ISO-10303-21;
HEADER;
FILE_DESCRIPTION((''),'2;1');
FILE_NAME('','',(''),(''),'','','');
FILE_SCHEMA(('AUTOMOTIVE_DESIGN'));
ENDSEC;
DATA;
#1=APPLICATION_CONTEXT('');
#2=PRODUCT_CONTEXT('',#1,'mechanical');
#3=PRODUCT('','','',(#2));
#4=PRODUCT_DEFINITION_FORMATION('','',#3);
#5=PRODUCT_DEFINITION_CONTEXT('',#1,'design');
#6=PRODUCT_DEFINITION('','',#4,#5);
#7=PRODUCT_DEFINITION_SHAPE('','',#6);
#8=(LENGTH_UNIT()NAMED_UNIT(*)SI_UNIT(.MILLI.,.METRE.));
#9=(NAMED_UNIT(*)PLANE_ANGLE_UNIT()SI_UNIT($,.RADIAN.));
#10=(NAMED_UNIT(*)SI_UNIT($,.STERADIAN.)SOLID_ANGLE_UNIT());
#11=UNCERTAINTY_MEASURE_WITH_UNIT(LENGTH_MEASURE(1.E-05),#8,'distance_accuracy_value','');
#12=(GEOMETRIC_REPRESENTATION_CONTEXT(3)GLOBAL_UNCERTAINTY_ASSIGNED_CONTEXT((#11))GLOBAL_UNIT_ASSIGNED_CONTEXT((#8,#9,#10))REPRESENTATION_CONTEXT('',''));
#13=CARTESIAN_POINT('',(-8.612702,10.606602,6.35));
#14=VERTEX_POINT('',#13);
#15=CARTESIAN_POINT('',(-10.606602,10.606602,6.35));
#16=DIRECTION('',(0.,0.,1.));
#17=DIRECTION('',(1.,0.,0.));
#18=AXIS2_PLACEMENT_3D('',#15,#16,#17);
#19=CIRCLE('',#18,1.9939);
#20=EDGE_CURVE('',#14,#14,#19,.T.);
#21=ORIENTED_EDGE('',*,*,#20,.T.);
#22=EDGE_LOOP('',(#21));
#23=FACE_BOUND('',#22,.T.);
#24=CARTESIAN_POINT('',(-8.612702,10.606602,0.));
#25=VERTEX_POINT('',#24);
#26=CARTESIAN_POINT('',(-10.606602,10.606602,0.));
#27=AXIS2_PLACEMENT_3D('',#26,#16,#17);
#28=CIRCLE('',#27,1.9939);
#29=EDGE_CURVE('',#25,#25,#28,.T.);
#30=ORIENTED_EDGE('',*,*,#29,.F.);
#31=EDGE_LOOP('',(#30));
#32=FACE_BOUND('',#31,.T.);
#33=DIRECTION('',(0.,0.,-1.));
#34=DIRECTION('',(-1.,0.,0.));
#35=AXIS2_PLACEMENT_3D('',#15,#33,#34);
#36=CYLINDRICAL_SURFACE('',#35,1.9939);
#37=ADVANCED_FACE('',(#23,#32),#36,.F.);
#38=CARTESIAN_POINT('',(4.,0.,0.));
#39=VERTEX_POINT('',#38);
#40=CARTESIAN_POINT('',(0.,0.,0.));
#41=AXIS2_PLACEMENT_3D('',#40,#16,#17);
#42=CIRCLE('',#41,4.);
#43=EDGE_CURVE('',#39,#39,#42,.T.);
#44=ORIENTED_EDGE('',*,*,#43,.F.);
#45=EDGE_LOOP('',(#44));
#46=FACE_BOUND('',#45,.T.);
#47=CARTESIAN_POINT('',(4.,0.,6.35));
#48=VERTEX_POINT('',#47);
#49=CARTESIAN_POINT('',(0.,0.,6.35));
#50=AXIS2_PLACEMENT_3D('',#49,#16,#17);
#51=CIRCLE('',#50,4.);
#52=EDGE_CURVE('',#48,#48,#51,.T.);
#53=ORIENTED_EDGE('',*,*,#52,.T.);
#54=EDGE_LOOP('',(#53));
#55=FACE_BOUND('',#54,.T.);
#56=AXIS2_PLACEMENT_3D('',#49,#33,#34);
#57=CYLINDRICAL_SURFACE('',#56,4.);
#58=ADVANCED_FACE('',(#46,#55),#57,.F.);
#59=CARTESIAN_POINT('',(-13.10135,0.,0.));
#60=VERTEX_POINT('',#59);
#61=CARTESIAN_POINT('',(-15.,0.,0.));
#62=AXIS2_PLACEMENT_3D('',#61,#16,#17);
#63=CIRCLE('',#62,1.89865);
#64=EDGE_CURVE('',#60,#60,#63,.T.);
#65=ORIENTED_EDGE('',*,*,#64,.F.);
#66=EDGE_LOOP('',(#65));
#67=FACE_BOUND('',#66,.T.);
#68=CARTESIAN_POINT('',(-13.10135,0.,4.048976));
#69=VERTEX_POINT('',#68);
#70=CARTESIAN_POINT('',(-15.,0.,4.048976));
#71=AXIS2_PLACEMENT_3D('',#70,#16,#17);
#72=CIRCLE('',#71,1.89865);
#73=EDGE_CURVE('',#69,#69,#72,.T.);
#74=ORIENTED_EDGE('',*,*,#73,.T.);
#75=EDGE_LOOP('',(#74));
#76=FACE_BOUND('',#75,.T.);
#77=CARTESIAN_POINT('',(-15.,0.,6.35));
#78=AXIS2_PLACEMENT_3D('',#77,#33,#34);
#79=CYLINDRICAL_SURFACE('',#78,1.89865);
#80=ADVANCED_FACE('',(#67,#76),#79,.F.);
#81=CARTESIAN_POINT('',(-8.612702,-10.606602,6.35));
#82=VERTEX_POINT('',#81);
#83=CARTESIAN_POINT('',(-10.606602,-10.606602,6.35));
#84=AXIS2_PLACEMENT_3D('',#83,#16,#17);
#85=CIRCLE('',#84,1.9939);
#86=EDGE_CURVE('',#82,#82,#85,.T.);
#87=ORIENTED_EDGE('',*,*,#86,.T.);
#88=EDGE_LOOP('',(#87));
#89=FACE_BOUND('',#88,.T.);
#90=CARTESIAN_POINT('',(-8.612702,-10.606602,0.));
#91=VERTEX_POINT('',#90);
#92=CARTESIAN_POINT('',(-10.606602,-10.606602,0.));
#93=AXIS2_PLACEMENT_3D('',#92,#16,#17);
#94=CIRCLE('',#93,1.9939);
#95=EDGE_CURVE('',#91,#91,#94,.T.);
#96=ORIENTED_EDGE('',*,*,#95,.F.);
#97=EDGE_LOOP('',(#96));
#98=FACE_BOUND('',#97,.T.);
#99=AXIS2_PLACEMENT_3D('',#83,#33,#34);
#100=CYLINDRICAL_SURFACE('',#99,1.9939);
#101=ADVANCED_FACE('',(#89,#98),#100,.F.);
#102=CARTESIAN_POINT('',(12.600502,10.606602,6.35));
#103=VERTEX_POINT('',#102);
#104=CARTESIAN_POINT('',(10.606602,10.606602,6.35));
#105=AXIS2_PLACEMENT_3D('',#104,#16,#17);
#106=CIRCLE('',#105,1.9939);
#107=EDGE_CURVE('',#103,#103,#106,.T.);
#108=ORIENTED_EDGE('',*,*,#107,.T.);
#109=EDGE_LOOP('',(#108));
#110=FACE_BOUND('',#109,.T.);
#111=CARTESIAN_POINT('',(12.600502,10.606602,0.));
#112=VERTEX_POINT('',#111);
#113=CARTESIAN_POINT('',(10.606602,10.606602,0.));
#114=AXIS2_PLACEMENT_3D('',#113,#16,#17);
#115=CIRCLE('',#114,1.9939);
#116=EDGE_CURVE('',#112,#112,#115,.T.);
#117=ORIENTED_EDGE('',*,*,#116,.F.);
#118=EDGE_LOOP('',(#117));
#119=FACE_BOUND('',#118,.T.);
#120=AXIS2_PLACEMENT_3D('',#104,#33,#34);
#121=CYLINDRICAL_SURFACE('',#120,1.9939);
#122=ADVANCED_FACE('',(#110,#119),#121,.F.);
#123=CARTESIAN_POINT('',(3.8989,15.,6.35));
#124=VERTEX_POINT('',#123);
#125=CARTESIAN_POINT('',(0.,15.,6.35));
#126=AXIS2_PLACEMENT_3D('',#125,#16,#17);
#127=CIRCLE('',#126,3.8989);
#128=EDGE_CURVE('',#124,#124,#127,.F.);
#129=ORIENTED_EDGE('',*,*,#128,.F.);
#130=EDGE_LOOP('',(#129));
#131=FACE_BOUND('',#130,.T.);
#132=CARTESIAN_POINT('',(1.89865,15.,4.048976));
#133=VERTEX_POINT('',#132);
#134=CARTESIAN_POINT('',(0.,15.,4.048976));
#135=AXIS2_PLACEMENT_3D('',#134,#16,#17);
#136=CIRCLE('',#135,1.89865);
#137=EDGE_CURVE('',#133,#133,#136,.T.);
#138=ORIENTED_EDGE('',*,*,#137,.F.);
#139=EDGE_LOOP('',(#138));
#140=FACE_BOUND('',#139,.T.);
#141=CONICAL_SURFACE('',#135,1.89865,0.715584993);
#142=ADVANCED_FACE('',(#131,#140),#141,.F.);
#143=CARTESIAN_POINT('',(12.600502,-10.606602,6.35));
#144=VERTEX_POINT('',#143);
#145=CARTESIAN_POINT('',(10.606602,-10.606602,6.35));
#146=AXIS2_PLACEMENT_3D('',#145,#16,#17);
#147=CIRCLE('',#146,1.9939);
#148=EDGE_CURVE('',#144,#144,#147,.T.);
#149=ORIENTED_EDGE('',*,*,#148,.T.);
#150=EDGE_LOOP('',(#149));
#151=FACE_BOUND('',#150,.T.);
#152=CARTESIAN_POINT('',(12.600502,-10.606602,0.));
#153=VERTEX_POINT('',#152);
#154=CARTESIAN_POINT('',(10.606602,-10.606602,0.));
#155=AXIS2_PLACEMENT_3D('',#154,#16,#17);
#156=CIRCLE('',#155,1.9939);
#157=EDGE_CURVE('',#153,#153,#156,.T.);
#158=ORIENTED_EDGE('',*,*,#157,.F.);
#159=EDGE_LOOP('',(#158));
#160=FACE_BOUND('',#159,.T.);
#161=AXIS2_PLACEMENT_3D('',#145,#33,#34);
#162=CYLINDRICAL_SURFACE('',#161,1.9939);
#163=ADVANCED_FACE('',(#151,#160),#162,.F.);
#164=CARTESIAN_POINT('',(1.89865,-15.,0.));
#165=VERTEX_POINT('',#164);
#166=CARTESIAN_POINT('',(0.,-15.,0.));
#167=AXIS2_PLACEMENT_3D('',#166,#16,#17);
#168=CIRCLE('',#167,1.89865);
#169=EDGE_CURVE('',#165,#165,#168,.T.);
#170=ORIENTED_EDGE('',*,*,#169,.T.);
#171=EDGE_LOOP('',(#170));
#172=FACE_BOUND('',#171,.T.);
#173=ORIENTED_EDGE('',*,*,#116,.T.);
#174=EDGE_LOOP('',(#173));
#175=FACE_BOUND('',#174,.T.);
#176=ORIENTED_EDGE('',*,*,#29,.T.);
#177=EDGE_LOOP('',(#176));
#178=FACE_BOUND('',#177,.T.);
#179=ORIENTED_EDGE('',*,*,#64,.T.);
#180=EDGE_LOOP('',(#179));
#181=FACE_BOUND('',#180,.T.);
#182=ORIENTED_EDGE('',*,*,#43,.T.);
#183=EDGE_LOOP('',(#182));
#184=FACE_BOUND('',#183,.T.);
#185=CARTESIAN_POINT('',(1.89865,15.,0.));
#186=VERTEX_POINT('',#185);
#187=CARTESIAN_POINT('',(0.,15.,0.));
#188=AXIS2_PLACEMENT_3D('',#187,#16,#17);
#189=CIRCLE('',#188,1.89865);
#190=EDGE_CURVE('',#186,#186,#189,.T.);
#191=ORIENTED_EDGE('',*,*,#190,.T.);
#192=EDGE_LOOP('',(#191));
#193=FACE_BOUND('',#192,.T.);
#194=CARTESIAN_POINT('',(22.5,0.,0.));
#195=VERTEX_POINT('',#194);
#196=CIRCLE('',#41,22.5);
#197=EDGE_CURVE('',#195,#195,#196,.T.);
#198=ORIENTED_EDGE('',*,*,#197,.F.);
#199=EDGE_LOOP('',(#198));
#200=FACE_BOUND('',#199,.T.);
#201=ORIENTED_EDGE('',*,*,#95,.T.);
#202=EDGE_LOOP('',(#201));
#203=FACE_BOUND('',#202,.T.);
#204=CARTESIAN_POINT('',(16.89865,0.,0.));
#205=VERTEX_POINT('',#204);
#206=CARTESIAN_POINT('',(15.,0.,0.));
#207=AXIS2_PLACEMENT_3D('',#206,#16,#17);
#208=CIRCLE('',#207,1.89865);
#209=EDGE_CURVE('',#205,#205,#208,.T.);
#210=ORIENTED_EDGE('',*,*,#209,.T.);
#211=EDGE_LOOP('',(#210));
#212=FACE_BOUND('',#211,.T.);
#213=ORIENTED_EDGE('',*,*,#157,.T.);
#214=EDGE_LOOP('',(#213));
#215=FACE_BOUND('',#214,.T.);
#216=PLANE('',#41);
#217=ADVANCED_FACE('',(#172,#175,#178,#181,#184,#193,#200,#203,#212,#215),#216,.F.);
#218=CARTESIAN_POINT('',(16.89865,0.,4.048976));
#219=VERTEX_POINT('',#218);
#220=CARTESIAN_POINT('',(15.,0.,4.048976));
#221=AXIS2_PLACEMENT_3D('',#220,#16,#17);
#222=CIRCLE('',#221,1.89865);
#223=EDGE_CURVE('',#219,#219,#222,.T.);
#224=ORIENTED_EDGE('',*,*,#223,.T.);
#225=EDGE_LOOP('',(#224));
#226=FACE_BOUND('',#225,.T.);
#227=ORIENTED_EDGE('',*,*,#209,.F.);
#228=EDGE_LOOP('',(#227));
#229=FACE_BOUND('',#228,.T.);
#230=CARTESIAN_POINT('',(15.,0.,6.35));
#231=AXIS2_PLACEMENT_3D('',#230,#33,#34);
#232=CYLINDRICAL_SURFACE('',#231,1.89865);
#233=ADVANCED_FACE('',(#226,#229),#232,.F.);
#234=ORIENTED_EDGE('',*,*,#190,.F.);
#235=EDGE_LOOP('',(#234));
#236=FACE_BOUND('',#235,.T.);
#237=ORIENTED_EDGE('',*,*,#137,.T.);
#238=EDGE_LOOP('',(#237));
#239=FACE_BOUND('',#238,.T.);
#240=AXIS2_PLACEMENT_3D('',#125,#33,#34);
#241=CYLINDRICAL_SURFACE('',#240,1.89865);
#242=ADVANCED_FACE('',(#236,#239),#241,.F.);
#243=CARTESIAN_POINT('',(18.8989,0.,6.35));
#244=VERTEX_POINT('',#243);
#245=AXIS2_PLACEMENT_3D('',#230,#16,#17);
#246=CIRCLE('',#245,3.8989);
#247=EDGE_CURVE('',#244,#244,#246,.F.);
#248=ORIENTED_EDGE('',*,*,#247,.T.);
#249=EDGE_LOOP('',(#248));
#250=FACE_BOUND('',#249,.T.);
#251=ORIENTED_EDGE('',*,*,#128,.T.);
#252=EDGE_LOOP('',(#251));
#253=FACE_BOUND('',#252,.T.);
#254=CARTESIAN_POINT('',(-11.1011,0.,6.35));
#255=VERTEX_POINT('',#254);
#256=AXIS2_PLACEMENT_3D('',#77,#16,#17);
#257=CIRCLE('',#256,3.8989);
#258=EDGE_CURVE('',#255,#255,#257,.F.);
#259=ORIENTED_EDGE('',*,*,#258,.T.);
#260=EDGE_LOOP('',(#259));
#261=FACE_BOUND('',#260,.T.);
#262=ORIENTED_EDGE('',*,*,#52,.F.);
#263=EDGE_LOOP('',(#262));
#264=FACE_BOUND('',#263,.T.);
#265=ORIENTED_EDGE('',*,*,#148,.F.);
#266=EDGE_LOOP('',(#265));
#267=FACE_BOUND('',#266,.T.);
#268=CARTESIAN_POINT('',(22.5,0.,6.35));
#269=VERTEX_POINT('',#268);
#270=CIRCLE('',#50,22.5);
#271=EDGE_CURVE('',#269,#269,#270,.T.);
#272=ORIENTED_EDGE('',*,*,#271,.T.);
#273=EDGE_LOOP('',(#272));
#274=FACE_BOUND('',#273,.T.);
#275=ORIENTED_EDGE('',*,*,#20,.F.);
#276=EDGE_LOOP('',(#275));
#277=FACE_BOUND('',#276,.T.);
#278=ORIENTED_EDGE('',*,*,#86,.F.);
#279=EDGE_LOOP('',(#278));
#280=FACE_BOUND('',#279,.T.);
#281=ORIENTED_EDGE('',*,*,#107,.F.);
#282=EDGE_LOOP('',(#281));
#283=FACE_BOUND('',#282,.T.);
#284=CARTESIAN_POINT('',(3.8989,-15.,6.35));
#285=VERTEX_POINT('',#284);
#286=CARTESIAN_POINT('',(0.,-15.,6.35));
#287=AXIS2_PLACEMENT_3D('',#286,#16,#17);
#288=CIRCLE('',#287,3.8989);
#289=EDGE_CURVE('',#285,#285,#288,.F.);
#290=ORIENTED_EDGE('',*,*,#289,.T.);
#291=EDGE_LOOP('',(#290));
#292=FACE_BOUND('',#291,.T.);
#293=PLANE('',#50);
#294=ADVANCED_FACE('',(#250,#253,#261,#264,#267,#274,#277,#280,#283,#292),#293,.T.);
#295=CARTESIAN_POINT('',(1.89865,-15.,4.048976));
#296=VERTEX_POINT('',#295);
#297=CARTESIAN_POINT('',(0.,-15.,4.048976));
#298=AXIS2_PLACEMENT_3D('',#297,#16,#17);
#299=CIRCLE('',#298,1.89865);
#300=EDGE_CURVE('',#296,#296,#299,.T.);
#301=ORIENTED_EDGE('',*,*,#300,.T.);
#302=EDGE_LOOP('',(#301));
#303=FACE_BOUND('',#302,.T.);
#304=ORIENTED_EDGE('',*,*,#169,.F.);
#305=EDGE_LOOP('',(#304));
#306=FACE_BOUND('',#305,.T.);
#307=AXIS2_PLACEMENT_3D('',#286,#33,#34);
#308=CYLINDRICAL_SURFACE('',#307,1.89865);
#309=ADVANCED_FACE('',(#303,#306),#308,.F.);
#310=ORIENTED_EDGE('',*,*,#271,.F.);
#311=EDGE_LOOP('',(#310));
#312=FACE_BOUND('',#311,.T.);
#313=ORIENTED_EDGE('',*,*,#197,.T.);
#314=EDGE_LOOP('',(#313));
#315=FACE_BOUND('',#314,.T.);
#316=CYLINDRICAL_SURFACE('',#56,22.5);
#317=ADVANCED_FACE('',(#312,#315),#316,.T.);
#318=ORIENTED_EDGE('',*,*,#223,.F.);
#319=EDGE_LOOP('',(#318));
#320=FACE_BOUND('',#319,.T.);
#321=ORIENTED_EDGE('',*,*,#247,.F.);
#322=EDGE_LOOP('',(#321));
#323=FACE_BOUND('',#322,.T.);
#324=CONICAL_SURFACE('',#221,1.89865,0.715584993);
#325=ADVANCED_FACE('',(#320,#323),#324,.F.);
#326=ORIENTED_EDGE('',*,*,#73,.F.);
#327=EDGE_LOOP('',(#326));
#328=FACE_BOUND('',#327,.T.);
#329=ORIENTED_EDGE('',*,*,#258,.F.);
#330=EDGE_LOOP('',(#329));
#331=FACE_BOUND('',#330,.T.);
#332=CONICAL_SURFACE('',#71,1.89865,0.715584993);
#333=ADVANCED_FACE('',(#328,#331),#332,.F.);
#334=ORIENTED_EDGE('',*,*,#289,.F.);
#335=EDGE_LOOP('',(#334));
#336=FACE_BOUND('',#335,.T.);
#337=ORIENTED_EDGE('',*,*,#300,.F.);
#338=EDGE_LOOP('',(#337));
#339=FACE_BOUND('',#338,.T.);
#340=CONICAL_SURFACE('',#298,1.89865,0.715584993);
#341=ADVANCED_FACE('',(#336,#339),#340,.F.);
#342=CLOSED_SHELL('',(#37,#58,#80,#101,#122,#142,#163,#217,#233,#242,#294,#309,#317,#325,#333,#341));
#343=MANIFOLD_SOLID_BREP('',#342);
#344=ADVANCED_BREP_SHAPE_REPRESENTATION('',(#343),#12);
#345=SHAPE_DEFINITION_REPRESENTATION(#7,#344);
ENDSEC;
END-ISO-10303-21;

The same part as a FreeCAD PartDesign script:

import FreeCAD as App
import Part
import Sketcher


def edges_at(feature, points):
    """Names of the edges that pass closest to the given points."""
    edges = feature.Shape.Edges
    near = lambda p: min(range(len(edges)), key=lambda i: edges[i].distToShape(Part.Vertex(*p))[0])
    return sorted({f"Edge{near(p) + 1}" for p in points})

doc = App.newDocument("Part")
params = doc.addObject("Spreadsheet::Sheet", "Params")
for row, (alias, value) in enumerate([
    ("sketch1_diameter", "45 mm"),
    ("sketch1_diameter2", "8 mm"),
    ("pad1_length", "6.35 mm"),
    ("chamfer_size", "2.301024 mm"),
    ("chamfer_size2", "2.00025 mm"),
    ("chamfer2_size", "2.301024 mm"),
    ("chamfer2_size2", "2.00025 mm"),
    ("chamfer3_size", "2.301024 mm"),
    ("chamfer3_size2", "2.00025 mm"),
    ("chamfer4_size", "2.301024 mm"),
    ("chamfer4_size2", "2.00025 mm"),
], start=1):
    params.set(f"A{row}", alias)
    params.set(f"B{row}", "=" + value)
    params.setAlias(f"B{row}", alias)

body = doc.addObject("PartDesign::Body", "Body")

sketch1 = body.newObject("Sketcher::SketchObject", "Sketch")
sketch1.AttachmentSupport = (doc.getObject("XY_Plane"), [""])
sketch1.MapMode = "FlatFace"
sketch1.addGeometry([
    Part.Circle(App.Vector(0, 0, 0), App.Vector(0, 0, 1), 22.5),
    Part.Circle(App.Vector(-10.606602, -10.606602, 0), App.Vector(0, 0, 1), 1.9939),
    Part.Circle(App.Vector(0, -15, 0), App.Vector(0, 0, 1), 1.89865),
    Part.Circle(App.Vector(10.606602, -10.606602, 0), App.Vector(0, 0, 1), 1.9939),
    Part.Circle(App.Vector(-15, 0, 0), App.Vector(0, 0, 1), 1.89865),
    Part.Circle(App.Vector(0, 0, 0), App.Vector(0, 0, 1), 4),
    Part.Circle(App.Vector(-10.606602, 10.606602, 0), App.Vector(0, 0, 1), 1.9939),
    Part.Circle(App.Vector(0, 15, 0), App.Vector(0, 0, 1), 1.89865),
    Part.Circle(App.Vector(15, 0, 0), App.Vector(0, 0, 1), 1.89865),
    Part.Circle(App.Vector(10.606602, 10.606602, 0), App.Vector(0, 0, 1), 1.9939),
], False)
sketch1.addConstraint([
    Sketcher.Constraint("Coincident", 0, 3, -1, 1),
    Sketcher.Constraint("Coincident", 5, 3, -1, 1),
    Sketcher.Constraint("Equal", 1, 3),
    Sketcher.Constraint("Equal", 2, 4),
    Sketcher.Constraint("Equal", 3, 6),
    Sketcher.Constraint("Equal", 4, 7),
    Sketcher.Constraint("Equal", 7, 8),
    Sketcher.Constraint("Equal", 6, 9),
    Sketcher.Constraint("Symmetric", 3, 3, 6, 3, -1, 1),
    Sketcher.Constraint("Symmetric", 2, 3, 7, 3, -1, 1),
    Sketcher.Constraint("Symmetric", 4, 3, 8, 3, -1, 1),
    Sketcher.Constraint("Symmetric", 1, 3, 9, 3, -1, 1),
    Sketcher.Constraint("Symmetric", 1, 3, 3, 3, -2),
    Sketcher.Constraint("PointOnObject", 2, 3, -2),
    Sketcher.Constraint("PointOnObject", 4, 3, -1),
    Sketcher.Constraint("Diameter", 0, 45.0),
    Sketcher.Constraint("Diameter", 5, 8.0),
    Sketcher.Constraint("DistanceY", 2, 3, -1, 1, 15.0),
    Sketcher.Constraint("DistanceX", 4, 3, -1, 1, 15.0),
    Sketcher.Constraint("Diameter", 1, 3.9878),
    Sketcher.Constraint("Diameter", 2, 3.7973),
    Sketcher.Constraint("DistanceX", 1, 3, -1, 1, 10.606602),
    Sketcher.Constraint("DistanceY", 1, 3, -1, 1, 10.606602),
])
sketch1.setExpression("Constraints[15]", "Params.sketch1_diameter")
sketch1.setExpression("Constraints[16]", "Params.sketch1_diameter2")
pad1 = body.newObject("PartDesign::Pad", "Pad")
pad1.Profile = sketch1
pad1.setExpression("Length", "Params.pad1_length")
doc.recompute()

chamfer = body.newObject("PartDesign::Chamfer", "Chamfer")
chamfer.Base = (pad1, edges_at(pad1, [(13.101, 0, 6.35)]))
chamfer.ChamferType = "Two distances"
chamfer.setExpression("Size", "Params.chamfer_size")
chamfer.setExpression("Size2", "Params.chamfer_size2")
doc.recompute()

chamfer2 = body.newObject("PartDesign::Chamfer", "Chamfer001")
chamfer2.Base = (chamfer, edges_at(chamfer, [(-1.899, -15, 6.35)]))
chamfer2.ChamferType = "Two distances"
chamfer2.setExpression("Size", "Params.chamfer2_size")
chamfer2.setExpression("Size2", "Params.chamfer2_size2")
chamfer2.FlipDirection = True
doc.recompute()

chamfer3 = body.newObject("PartDesign::Chamfer", "Chamfer002")
chamfer3.Base = (chamfer2, edges_at(chamfer2, [(-16.899, 0, 6.35)]))
chamfer3.ChamferType = "Two distances"
chamfer3.setExpression("Size", "Params.chamfer3_size")
chamfer3.setExpression("Size2", "Params.chamfer3_size2")
chamfer3.FlipDirection = True
doc.recompute()

chamfer4 = body.newObject("PartDesign::Chamfer", "Chamfer003")
chamfer4.Base = (chamfer3, edges_at(chamfer3, [(-1.899, 15, 6.35)]))
chamfer4.ChamferType = "Two distances"
chamfer4.setExpression("Size", "Params.chamfer4_size")
chamfer4.setExpression("Size2", "Params.chamfer4_size2")
chamfer4.FlipDirection = True

doc.recompute()
